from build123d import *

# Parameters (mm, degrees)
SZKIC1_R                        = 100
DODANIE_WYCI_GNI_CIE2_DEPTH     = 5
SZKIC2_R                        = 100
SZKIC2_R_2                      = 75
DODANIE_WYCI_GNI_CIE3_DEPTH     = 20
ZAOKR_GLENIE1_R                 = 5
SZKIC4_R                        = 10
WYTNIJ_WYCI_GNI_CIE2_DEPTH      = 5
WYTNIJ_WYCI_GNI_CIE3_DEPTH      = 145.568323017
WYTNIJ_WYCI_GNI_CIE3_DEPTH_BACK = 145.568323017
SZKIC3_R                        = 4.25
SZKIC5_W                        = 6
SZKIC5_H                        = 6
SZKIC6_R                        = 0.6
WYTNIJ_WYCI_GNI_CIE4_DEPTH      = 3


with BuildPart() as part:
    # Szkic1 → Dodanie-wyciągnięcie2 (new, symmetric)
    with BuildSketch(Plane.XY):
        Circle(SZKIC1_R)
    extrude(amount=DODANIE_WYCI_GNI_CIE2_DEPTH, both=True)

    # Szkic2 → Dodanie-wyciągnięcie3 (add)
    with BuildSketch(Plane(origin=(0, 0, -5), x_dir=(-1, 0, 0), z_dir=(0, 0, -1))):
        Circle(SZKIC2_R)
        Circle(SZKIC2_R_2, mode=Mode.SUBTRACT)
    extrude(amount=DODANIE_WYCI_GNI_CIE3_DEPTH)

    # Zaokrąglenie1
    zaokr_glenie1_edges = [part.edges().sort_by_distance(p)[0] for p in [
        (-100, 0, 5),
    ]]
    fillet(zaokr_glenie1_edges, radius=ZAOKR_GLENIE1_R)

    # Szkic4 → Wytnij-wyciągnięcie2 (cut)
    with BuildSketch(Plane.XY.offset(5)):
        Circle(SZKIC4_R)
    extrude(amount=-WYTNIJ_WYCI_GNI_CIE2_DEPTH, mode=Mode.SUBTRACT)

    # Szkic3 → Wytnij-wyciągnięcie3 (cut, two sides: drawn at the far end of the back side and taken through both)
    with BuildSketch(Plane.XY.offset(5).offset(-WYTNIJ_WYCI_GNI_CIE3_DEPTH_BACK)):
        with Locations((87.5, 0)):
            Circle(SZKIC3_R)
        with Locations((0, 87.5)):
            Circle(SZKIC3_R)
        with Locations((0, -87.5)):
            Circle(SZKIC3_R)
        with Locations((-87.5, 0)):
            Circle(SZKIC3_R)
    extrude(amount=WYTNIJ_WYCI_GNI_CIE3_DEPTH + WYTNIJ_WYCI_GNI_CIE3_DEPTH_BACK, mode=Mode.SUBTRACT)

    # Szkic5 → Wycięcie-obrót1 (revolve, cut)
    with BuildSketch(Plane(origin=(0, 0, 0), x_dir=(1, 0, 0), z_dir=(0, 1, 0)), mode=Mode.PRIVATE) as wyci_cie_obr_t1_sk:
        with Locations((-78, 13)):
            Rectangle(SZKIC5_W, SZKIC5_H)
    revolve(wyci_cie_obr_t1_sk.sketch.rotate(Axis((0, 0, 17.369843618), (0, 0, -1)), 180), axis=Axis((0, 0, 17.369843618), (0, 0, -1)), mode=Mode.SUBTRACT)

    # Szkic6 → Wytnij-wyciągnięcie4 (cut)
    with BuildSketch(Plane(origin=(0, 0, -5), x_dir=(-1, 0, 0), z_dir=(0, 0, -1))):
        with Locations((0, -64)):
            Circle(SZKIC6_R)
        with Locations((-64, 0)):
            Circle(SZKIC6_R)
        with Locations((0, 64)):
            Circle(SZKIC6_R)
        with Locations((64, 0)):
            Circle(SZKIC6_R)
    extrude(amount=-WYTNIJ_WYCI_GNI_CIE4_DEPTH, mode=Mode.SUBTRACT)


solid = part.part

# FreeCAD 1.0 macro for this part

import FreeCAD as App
import Part
import Sketcher
from FreeCAD import Vector
Q = App.Units.Quantity


def edges_at(feature, points):
    """Names of the edges that pass closest to the given points."""
    edges = feature.Shape.Edges
    near = lambda p: min(range(len(edges)), key=lambda i: edges[i].distToShape(Part.Vertex(*p))[0])
    return sorted({f"Edge{near(p) + 1}" for p in points})


def add_polygon(sketch, points):
    """Adds a closed chain of lines whose ends are joined by coincident constraints."""
    first, n = sketch.GeometryCount, len(points)
    for a, b in zip(points, points[1:] + points[:1]):
        sketch.addGeometry(Part.LineSegment(App.Vector(*a, 0), App.Vector(*b, 0)), False)
    for i in range(n):
        sketch.addConstraint(Sketcher.Constraint("Coincident", first + i, 2, first + (i + 1) % n, 1))

doc = App.newDocument("Part")
body = doc.addObject("PartDesign::Body", "Body")

# Sketch on XY plane
sketch1 = body.newObject("Sketcher::SketchObject", "Sketch")
sketch1.AttachmentSupport = (doc.getObject("XY_Plane"), [""])
sketch1.MapMode = "FlatFace"
sketch1.addGeometry(Part.Circle(Vector(0, 0, 0), Vector(0, 0, 1), 100), False)
sketch1.addConstraint([
    Sketcher.Constraint("Coincident", 0, 3, -1, 1),
    Sketcher.Constraint("Diameter", 0, Q("200 mm")),
])
pad1 = body.newObject("PartDesign::Pad", "Pad")
pad1.Profile = sketch1
pad1.Length = 10
pad1.Midplane = True

# Sketch on XY plane
sketch2 = body.newObject("Sketcher::SketchObject", "Sketch001")
sketch2.AttachmentSupport = (doc.getObject("XY_Plane"), [""])
sketch2.MapMode = "FlatFace"
sketch2.AttachmentOffset = App.Placement(Vector(0, 0, -5), App.Rotation())
sketch2.addGeometry([
    Part.Circle(Vector(0, 0, 0), Vector(0, 0, 1), 100),
    Part.Circle(Vector(0, 0, 0), Vector(0, 0, 1), 75),
], False)
sketch2.addConstraint([
    Sketcher.Constraint("Coincident", 0, 3, -1, 1),
    Sketcher.Constraint("Coincident", 1, 3, -1, 1),
    Sketcher.Constraint("Diameter", 0, Q("200 mm")),
    Sketcher.Constraint("Diameter", 1, Q("150 mm")),
])
pad2 = body.newObject("PartDesign::Pad", "Pad001")
pad2.Profile = sketch2
pad2.Length = 20
pad2.Reversed = True
doc.recompute()

fillet = body.newObject("PartDesign::Fillet", "Fillet")
fillet.Base = (pad2, edges_at(pad2, [(-100, 0, 5)]))
fillet.Radius = 5

# Sketch on XY plane
sketch3 = body.newObject("Sketcher::SketchObject", "Sketch002")
sketch3.AttachmentSupport = (doc.getObject("XY_Plane"), [""])
sketch3.MapMode = "FlatFace"
sketch3.AttachmentOffset = App.Placement(Vector(0, 0, 5), App.Rotation())
sketch3.addGeometry(Part.Circle(Vector(0, 0, 0), Vector(0, 0, 1), 10), False)
sketch3.addConstraint([
    Sketcher.Constraint("Coincident", 0, 3, -1, 1),
    Sketcher.Constraint("Diameter", 0, Q("20 mm")),
])
pocket1 = body.newObject("PartDesign::Pocket", "Pocket")
pocket1.Profile = sketch3
pocket1.Length = 5

# Sketch on XY plane
sketch4 = body.newObject("Sketcher::SketchObject", "Sketch003")
sketch4.AttachmentSupport = (doc.getObject("XY_Plane"), [""])
sketch4.MapMode = "FlatFace"
sketch4.AttachmentOffset = App.Placement(Vector(0, 0, 5), App.Rotation())
sketch4.addGeometry([
    Part.Circle(Vector(87.5, 0, 0), Vector(0, 0, 1), 4.2),
    Part.Circle(Vector(0, 87.5, 0), Vector(0, 0, 1), 4.2),
    Part.Circle(Vector(0, -87.5, 0), Vector(0, 0, 1), 4.2),
    Part.Circle(Vector(-87.5, 0, 0), Vector(0, 0, 1), 4.2),
], False)
sketch4.addConstraint([
    Sketcher.Constraint("Equal", 0, 1),
    Sketcher.Constraint("Equal", 1, 2),
    Sketcher.Constraint("Equal", 2, 3),
    Sketcher.Constraint("Symmetric", 1, 3, 2, 3, -1, 1),
    Sketcher.Constraint("Symmetric", 0, 3, 3, 3, -1, 1),
    Sketcher.Constraint("PointOnObject", 0, 3, -1),
    Sketcher.Constraint("PointOnObject", 1, 3, -2),
    Sketcher.Constraint("Diameter", 0, Q("8.5 mm")),
    Sketcher.Constraint("DistanceY", 2, 3, 1, 3, Q("175 mm")),
    Sketcher.Constraint("DistanceX", 3, 3, 0, 3, Q("175 mm")),
])
pocket2 = body.newObject("PartDesign::Pocket", "Pocket001")
pocket2.Profile = sketch4
pocket2.Type = "ThroughAll"
pocket2.Midplane = True

# Sketch on XZ plane
sketch5 = body.newObject("Sketcher::SketchObject", "Sketch004")
sketch5.AttachmentSupport = (doc.getObject("XZ_Plane"), [""])
sketch5.MapMode = "FlatFace"
add_polygon(sketch5, [(-81, -16), (-81, -10), (-75, -10), (-75, -16)])  # lines 0-3
sketch5.addConstraint([
    Sketcher.Constraint("Vertical", 0),
    Sketcher.Constraint("Horizontal", 1),
    Sketcher.Constraint("Vertical", 2),
    Sketcher.Constraint("Horizontal", 3),
    Sketcher.Constraint("Equal", 3, 0),
    Sketcher.Constraint("DistanceX", 1, 1, 1, 2, Q("6 mm")),
    Sketcher.Constraint("DistanceX", 0, 2, -1, 1, Q("81 mm")),
    Sketcher.Constraint("DistanceY", 0, 2, -1, 1, Q("10 mm")),
])
groove = body.newObject("PartDesign::Groove", "Groove")
groove.Profile = sketch5
groove.ReferenceAxis = (sketch5, ["V_Axis"])
groove.Angle = 360

# Sketch on XY plane
sketch6 = body.newObject("Sketcher::SketchObject", "Sketch005")
sketch6.AttachmentSupport = (doc.getObject("XY_Plane"), [""])
sketch6.MapMode = "FlatFace"
sketch6.AttachmentOffset = App.Placement(Vector(0, 0, -5), App.Rotation())
sketch6.addGeometry([
    Part.Circle(Vector(0, -64, 0), Vector(0, 0, 1), 0.6),
    Part.Circle(Vector(64, 0, 0), Vector(0, 0, 1), 0.6),
    Part.Circle(Vector(0, 64, 0), Vector(0, 0, 1), 0.6),
    Part.Circle(Vector(-64, 0, 0), Vector(0, 0, 1), 0.6),
], False)
sketch6.addConstraint([
    Sketcher.Constraint("Equal", 0, 1),
    Sketcher.Constraint("Equal", 1, 2),
    Sketcher.Constraint("Equal", 2, 3),
    Sketcher.Constraint("Symmetric", 0, 3, 2, 3, -1, 1),
    Sketcher.Constraint("Symmetric", 1, 3, 3, 3, -1, 1),
    Sketcher.Constraint("PointOnObject", 0, 3, -2),
    Sketcher.Constraint("PointOnObject", 1, 3, -1),
    Sketcher.Constraint("Diameter", 0, Q("1.2 mm")),
    Sketcher.Constraint("DistanceY", 0, 3, -1, 1, Q("64 mm")),
    Sketcher.Constraint("DistanceX", -1, 1, 1, 3, Q("64 mm")),
])
pocket3 = body.newObject("PartDesign::Pocket", "Pocket002")
pocket3.Profile = sketch6
pocket3.Length = 3
pocket3.Reversed = True

doc.recompute()
